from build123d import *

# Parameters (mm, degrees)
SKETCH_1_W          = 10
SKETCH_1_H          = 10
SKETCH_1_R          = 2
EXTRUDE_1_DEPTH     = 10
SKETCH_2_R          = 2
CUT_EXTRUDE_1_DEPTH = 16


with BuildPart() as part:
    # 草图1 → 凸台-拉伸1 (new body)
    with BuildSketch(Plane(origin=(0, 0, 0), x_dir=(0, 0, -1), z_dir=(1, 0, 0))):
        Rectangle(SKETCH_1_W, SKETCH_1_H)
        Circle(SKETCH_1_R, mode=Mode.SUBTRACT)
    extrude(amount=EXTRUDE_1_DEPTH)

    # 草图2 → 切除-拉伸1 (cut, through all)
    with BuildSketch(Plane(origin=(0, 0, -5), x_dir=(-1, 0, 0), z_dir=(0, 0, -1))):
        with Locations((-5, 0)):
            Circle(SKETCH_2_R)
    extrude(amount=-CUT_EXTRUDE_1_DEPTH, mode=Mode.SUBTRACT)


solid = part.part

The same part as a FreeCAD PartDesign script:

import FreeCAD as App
import Part
import Sketcher
from FreeCAD import Vector


def add_polygon(sketch, points):
    """Adds a closed chain of lines whose ends are joined by coincident constraints."""
    first, n = sketch.GeometryCount, len(points)
    for a, b in zip(points, points[1:] + points[:1]):
        sketch.addGeometry(Part.LineSegment(App.Vector(*a, 0), App.Vector(*b, 0)), False)
    for i in range(n):
        sketch.addConstraint(Sketcher.Constraint("Coincident", first + i, 2, first + (i + 1) % n, 1))

doc = App.newDocument("Part")
params = doc.addObject("Spreadsheet::Sheet", "Params")
for row, (alias, value) in enumerate([
    ("sketch1_diameter", "4 mm"),
    ("sketch1_width", "10 mm"),
    ("pad1_length", "10 mm"),
    ("sketch2_diameter", "4 mm"),
], start=1):
    params.set(f"A{row}", alias)
    params.set(f"B{row}", "=" + value)
    params.setAlias(f"B{row}", alias)

body = doc.addObject("PartDesign::Body", "Body")

# Sketch on YZ plane
sketch1 = doc.addObject("Sketcher::SketchObject", "Sketch")
body.addObject(sketch1)
sketch1.AttachmentSupport = (doc.YZ_Plane, [""])
sketch1.MapMode = "FlatFace"
add_polygon(sketch1, [(5, 5), (-5, 5), (-5, -5), (5, -5)])  # lines 0-3
sketch1.addGeometry(Part.Circle(Vector(0, 0, 0), Vector(0, 0, 1), 2), False)  # 4
sketch1.addConstraint([
    Sketcher.Constraint("Horizontal", 0),
    Sketcher.Constraint("Vertical", 1),
    Sketcher.Constraint("Horizontal", 2),
    Sketcher.Constraint("Vertical", 3),
    Sketcher.Constraint("Coincident", 4, 3, -1, 1),
    Sketcher.Constraint("Symmetric", 0, 2, 2, 2, -1, 1),
    Sketcher.Constraint("Equal", 2, 1),
    Sketcher.Constraint("Diameter", 4, 4.0),
    Sketcher.Constraint("DistanceX", 0, 2, 0, 1, 10.0),
])
sketch1.setExpression("Constraints[11]", "Params.sketch1_diameter")
sketch1.setExpression("Constraints[12]", "Params.sketch1_width")
pad1 = doc.addObject("PartDesign::Pad", "Pad")
body.addObject(pad1)
pad1.Profile = sketch1
pad1.setExpression("Length", "Params.pad1_length")

# Sketch on XY plane
sketch2 = doc.addObject("Sketcher::SketchObject", "Sketch001")
body.addObject(sketch2)
sketch2.AttachmentSupport = (doc.XY_Plane, [""])
sketch2.MapMode = "FlatFace"
sketch2.AttachmentOffset = App.Placement(Vector(0, 0, -5), App.Rotation())
sketch2.addGeometry(Part.Circle(Vector(5, 0, 0), Vector(0, 0, 1), 2), False)
sketch2.addConstraint([
    Sketcher.Constraint("PointOnObject", 0, 3, -1),
    Sketcher.Constraint("Diameter", 0, 4.0),
    Sketcher.Constraint("DistanceX", -1, 1, 0, 3, 5.0),
])
sketch2.setExpression("Constraints[1]", "Params.sketch2_diameter")
pocket1 = doc.addObject("PartDesign::Pocket", "Pocket")
body.addObject(pocket1)
pocket1.Profile = sketch2
pocket1.Type = "ThroughAll"
pocket1.Reversed = True

doc.recompute()
